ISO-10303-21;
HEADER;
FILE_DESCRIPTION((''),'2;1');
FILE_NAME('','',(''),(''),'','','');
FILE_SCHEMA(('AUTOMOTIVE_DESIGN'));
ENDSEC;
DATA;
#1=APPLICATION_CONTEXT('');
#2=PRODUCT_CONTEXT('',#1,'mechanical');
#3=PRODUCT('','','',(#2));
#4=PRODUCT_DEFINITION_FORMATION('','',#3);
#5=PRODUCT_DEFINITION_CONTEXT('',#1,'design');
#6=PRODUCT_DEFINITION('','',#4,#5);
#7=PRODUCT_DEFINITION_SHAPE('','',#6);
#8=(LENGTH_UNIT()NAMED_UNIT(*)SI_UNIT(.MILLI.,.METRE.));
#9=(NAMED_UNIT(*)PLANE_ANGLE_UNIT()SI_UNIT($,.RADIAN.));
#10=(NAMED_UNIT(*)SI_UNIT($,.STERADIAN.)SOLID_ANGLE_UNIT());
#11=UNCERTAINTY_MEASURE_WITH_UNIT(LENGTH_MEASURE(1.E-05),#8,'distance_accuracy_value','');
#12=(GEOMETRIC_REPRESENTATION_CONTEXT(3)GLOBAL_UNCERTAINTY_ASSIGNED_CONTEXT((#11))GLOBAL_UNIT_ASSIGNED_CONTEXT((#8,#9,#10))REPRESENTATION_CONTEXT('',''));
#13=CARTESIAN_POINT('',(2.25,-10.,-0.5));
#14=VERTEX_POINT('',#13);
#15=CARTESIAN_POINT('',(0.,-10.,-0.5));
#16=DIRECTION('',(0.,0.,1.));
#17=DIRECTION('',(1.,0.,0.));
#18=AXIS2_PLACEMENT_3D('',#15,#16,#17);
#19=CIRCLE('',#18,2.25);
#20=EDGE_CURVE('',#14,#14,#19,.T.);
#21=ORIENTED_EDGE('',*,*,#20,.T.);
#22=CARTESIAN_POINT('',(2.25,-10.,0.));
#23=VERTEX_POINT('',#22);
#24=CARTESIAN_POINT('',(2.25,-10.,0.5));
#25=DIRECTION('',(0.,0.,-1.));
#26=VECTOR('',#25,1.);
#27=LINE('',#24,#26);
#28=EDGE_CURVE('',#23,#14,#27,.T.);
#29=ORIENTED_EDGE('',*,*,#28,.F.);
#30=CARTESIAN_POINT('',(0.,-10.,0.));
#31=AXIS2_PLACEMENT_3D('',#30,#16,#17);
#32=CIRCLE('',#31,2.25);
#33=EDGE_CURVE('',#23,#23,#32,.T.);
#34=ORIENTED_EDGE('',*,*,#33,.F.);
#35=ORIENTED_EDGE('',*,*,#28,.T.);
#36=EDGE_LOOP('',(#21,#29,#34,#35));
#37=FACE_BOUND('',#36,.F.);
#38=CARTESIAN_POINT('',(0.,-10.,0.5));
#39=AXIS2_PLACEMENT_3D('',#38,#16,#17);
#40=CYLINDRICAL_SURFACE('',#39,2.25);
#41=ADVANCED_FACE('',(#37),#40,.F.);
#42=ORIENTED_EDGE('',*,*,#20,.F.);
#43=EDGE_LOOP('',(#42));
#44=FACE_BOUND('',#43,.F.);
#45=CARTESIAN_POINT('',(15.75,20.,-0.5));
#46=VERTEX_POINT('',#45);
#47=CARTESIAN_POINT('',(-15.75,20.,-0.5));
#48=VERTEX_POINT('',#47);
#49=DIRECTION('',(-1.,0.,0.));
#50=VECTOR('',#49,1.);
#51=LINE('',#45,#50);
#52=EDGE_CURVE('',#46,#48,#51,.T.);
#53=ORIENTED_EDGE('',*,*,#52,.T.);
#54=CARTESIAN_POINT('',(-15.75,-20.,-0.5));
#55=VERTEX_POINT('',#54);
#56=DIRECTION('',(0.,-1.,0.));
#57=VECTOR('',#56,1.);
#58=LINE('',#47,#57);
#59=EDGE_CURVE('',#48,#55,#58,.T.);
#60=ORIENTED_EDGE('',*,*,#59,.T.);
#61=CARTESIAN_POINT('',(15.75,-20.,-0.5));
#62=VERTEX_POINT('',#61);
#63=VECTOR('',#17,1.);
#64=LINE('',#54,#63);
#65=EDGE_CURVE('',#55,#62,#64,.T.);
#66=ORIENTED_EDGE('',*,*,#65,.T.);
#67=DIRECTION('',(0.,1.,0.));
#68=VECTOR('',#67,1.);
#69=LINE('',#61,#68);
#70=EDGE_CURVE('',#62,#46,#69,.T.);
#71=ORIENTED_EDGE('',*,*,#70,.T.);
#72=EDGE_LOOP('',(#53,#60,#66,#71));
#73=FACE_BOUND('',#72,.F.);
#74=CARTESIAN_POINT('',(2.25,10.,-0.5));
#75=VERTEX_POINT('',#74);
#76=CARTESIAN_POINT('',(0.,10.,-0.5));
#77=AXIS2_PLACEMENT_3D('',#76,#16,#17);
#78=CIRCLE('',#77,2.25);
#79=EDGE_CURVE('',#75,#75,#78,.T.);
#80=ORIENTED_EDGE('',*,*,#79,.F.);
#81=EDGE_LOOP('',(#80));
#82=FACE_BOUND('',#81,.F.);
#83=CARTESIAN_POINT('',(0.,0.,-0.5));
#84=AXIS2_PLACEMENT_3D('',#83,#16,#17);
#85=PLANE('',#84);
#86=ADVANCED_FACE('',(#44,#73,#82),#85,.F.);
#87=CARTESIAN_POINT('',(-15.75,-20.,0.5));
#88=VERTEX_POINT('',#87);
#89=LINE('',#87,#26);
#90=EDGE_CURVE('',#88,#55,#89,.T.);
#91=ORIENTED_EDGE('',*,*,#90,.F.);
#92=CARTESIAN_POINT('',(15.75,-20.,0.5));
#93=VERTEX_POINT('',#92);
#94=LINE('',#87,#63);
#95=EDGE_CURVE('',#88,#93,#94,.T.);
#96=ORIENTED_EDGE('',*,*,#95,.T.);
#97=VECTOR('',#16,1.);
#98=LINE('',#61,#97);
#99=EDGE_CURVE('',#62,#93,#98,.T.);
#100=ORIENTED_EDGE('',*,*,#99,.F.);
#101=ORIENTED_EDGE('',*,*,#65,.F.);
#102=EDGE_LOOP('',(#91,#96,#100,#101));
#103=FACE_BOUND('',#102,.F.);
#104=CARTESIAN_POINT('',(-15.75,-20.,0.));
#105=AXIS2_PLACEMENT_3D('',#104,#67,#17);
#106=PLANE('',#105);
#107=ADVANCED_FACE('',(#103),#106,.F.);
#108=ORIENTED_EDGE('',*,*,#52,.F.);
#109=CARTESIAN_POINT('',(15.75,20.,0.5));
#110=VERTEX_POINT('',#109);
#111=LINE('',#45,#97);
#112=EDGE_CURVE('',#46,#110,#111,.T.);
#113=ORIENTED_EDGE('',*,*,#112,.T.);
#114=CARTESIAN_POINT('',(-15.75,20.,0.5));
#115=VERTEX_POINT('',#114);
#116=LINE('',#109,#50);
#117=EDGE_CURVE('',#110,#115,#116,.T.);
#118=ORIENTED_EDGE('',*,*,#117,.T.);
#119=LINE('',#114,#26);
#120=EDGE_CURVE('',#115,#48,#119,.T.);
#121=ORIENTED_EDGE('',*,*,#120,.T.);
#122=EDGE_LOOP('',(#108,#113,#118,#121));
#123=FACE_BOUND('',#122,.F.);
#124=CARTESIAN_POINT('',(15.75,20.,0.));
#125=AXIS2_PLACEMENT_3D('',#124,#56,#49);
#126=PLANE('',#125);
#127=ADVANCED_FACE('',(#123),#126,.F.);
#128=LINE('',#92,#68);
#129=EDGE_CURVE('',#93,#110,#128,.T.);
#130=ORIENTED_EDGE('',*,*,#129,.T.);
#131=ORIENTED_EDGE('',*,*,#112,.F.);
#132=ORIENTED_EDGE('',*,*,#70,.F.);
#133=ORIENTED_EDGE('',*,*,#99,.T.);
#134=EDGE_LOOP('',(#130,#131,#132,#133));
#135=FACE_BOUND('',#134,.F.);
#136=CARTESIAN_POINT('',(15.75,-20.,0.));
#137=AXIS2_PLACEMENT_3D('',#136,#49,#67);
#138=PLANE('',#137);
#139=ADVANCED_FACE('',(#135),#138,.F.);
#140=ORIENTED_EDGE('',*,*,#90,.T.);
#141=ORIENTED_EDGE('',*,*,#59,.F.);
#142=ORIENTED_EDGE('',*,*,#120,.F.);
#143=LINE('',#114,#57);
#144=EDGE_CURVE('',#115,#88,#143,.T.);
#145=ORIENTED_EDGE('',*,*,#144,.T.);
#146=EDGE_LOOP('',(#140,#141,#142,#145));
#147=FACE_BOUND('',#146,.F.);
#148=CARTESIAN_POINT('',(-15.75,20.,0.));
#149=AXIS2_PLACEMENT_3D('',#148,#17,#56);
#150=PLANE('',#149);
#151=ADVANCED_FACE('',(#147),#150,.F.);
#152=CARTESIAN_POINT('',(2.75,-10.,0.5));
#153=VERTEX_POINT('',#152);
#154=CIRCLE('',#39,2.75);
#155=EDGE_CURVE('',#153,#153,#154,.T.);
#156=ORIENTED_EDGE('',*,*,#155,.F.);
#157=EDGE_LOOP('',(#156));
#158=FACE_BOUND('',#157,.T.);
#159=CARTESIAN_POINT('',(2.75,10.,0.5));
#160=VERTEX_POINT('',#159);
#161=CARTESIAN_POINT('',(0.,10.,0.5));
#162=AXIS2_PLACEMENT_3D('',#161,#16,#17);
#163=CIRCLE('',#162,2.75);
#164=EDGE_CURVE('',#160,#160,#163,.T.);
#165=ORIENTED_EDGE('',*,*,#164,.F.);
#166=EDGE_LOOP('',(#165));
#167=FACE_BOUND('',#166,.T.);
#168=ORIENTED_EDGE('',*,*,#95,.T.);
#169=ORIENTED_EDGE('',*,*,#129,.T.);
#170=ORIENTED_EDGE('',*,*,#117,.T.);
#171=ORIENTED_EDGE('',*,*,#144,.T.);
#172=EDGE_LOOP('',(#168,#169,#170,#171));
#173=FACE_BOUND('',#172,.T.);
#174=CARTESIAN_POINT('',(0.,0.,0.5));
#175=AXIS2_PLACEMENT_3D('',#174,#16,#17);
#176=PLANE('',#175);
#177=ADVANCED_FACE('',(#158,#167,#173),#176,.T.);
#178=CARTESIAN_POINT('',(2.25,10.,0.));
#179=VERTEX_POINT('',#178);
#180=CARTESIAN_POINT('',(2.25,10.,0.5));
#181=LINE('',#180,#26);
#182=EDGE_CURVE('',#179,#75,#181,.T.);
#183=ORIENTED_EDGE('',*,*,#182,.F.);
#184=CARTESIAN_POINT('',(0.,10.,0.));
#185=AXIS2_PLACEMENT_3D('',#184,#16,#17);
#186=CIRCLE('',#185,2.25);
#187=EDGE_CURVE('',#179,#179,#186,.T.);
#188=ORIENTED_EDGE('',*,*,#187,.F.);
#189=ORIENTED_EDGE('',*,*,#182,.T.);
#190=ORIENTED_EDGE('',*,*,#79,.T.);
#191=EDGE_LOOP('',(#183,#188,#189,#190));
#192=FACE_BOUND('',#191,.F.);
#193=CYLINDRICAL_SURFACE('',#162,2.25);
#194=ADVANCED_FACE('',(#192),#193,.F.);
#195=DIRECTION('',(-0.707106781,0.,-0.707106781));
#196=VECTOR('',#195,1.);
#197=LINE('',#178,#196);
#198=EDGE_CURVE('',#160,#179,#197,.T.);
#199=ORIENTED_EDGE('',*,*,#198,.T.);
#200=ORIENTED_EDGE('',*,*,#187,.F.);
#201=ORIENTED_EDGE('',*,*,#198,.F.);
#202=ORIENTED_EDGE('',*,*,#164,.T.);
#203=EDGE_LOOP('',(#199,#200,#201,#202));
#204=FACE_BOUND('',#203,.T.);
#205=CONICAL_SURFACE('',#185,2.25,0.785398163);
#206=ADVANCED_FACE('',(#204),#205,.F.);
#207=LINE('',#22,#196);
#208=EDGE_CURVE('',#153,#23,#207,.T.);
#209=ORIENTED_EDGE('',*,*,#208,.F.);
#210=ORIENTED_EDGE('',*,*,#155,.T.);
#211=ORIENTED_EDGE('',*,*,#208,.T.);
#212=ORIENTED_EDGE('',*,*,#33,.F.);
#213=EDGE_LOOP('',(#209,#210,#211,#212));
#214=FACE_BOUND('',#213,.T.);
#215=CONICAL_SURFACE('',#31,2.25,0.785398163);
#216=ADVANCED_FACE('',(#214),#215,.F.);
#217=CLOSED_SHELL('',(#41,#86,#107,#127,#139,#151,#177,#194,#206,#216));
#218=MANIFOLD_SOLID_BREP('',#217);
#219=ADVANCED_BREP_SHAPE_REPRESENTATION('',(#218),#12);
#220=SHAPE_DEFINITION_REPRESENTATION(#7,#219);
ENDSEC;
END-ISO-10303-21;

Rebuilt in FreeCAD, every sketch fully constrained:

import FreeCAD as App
import Part
import Sketcher


def edges_at(feature, points):
    """Names of the edges that pass closest to the given points."""
    edges = feature.Shape.Edges
    near = lambda p: min(range(len(edges)), key=lambda i: edges[i].distToShape(Part.Vertex(*p))[0])
    return sorted({f"Edge{near(p) + 1}" for p in points})


def add_polygon(sketch, points):
    """Adds a closed chain of lines whose ends are joined by coincident constraints."""
    first, n = sketch.GeometryCount, len(points)
    for a, b in zip(points, points[1:] + points[:1]):
        sketch.addGeometry(Part.LineSegment(App.Vector(*a, 0), App.Vector(*b, 0)), False)
    for i in range(n):
        sketch.addConstraint(Sketcher.Constraint("Coincident", first + i, 2, first + (i + 1) % n, 1))

doc = App.newDocument("Part")
body = doc.addObject("PartDesign::Body", "Body")

# Sketch on XY plane
sketch1 = doc.addObject("Sketcher::SketchObject", "Sketch")
body.addObject(sketch1)
sketch1.AttachmentSupport = (doc.XY_Plane, [""])
sketch1.MapMode = "FlatFace"
add_polygon(sketch1, [(-15.75, 20), (-15.75, -20), (15.75, -20), (15.75, 20)])  # lines 0-3
sketch1.addConstraint([
    Sketcher.Constraint("Vertical", 0),
    Sketcher.Constraint("Horizontal", 1),
    Sketcher.Constraint("Vertical", 2),
    Sketcher.Constraint("Horizontal", 3),
    Sketcher.Constraint("Symmetric", 0, 2, 2, 2, -1, 1),
    Sketcher.Constraint("DistanceY", 0, 2, 0, 1, 40.0),
    Sketcher.Constraint("DistanceX", 0, 2, -1, 1, 15.75),
])
pad1 = doc.addObject("PartDesign::Pad", "Pad")
body.addObject(pad1)
pad1.Profile = sketch1
pad1.Length = 1
pad1.Midplane = True

# Sketch on XY plane
sketch2 = doc.addObject("Sketcher::SketchObject", "Sketch001")
body.addObject(sketch2)
sketch2.AttachmentSupport = (doc.XY_Plane, [""])
sketch2.MapMode = "FlatFace"
sketch2.AttachmentOffset = App.Placement(App.Vector(0, 0, 0.5), App.Rotation())
sketch2.addGeometry([
    Part.Circle(App.Vector(0, 10, 0), App.Vector(0, 0, 1), 2.25),
    Part.Circle(App.Vector(0, -10, 0), App.Vector(0, 0, 1), 2.25),
], False)
sketch2.addConstraint([
    Sketcher.Constraint("Equal", 0, 1),
    Sketcher.Constraint("Symmetric", 0, 3, 1, 3, -1, 1),
    Sketcher.Constraint("PointOnObject", 0, 3, -2),
    Sketcher.Constraint("Diameter", 0, 4.5),
    Sketcher.Constraint("DistanceY", -1, 1, 0, 3, 10.0),
])
pocket1 = doc.addObject("PartDesign::Pocket", "Pocket")
body.addObject(pocket1)
pocket1.Profile = sketch2
pocket1.Type = "ThroughAll"
doc.recompute()

chamfer = doc.addObject("PartDesign::Chamfer", "Chamfer")
body.addObject(chamfer)
chamfer.Base = (pocket1, edges_at(pocket1, [(-2.25, 10, 0.5), (-2.25, -10, 0.5)]))
chamfer.Size = 0.5

doc.recompute()
